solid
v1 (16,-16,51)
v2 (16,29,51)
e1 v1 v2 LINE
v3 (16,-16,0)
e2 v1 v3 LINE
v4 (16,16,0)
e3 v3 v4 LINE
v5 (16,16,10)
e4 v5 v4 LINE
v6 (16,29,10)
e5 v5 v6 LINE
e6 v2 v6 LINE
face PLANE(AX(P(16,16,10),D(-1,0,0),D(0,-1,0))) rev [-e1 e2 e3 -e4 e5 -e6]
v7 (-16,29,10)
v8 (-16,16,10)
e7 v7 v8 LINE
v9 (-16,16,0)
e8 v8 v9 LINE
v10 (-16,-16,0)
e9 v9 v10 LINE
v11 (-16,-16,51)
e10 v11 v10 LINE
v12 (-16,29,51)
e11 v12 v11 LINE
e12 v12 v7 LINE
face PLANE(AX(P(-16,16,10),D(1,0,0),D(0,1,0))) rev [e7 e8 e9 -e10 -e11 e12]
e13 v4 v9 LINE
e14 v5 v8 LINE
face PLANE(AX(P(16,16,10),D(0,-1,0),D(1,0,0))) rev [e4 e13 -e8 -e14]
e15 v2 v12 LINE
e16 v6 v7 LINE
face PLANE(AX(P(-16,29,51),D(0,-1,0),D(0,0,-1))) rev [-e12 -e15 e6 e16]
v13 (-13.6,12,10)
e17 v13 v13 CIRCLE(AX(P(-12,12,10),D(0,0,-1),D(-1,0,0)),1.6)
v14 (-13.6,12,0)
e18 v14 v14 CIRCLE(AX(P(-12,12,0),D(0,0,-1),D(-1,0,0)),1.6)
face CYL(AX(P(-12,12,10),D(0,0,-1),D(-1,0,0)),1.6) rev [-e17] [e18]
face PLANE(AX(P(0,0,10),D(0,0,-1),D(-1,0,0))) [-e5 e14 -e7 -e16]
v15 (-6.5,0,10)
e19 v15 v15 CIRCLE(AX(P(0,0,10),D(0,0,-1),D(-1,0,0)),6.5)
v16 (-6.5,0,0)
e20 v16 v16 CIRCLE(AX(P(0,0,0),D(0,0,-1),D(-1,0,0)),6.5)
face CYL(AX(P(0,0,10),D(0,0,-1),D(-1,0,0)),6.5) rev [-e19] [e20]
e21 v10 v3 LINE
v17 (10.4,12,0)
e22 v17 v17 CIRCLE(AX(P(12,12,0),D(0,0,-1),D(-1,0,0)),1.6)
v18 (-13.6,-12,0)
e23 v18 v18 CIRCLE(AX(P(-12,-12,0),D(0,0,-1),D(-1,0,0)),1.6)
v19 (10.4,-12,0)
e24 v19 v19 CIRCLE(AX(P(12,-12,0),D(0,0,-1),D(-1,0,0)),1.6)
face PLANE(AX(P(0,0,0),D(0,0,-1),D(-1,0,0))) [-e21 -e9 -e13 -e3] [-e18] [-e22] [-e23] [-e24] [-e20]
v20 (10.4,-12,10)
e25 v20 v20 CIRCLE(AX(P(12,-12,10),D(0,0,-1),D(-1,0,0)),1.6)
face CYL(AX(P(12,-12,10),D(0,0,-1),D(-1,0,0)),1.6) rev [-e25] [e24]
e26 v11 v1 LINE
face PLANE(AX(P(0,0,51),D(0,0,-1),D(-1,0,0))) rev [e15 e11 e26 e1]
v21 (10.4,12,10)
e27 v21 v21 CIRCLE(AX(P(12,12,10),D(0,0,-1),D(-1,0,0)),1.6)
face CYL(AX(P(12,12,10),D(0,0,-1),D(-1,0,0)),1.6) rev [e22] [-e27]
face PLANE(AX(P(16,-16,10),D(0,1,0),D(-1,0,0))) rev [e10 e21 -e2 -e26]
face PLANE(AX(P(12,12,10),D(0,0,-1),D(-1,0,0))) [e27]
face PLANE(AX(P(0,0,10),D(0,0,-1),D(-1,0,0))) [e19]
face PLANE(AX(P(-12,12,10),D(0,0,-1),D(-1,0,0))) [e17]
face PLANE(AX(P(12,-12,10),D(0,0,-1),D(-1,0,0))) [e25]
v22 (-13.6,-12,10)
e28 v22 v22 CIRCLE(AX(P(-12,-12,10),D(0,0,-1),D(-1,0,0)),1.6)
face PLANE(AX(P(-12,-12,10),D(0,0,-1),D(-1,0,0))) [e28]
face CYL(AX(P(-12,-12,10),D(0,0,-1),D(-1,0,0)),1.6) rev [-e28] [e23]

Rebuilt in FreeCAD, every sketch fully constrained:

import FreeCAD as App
import Part
import Sketcher

V = App.Vector
Q = App.Units.Quantity

doc = App.newDocument("Part")
body = doc.addObject("PartDesign::Body", "Body")

sketch1 = body.newObject("Sketcher::SketchObject", "Sketch")
sketch1.AttachmentSupport = (doc.getObject("XY_Plane"), [""])
sketch1.MapMode = "FlatFace"
sketch1.addGeometry(Part.LineSegment(V(-16, 16, 0), V(-16, -16, 0)), False)
sketch1.addGeometry(Part.LineSegment(V(-16, -16, 0), V(16, -16, 0)), False)
sketch1.addGeometry(Part.LineSegment(V(16, -16, 0), V(16, 16, 0)), False)
sketch1.addGeometry(Part.LineSegment(V(16, 16, 0), V(-16, 16, 0)), False)
sketch1.addConstraint(Sketcher.Constraint("Coincident", 0, 2, 1, 1))
sketch1.addConstraint(Sketcher.Constraint("Coincident", 1, 2, 2, 1))
sketch1.addConstraint(Sketcher.Constraint("Coincident", 2, 2, 3, 1))
sketch1.addConstraint(Sketcher.Constraint("Coincident", 3, 2, 0, 1))
sketch1.addConstraint(Sketcher.Constraint("Vertical", 0))
sketch1.addConstraint(Sketcher.Constraint("Horizontal", 1))
sketch1.addConstraint(Sketcher.Constraint("Vertical", 2))
sketch1.addConstraint(Sketcher.Constraint("Horizontal", 3))
sketch1.addConstraint(Sketcher.Constraint("Symmetric", 0, 2, 2, 2, -1, 1))
sketch1.addConstraint(Sketcher.Constraint("Equal", 3, 0))
sketch1.addConstraint(Sketcher.Constraint("DistanceX", 1, 1, 1, 2, Q("32 mm")))
pad1 = body.newObject("PartDesign::Pad", "Pad")
pad1.Profile = sketch1
pad1.Length = 10

sketch2 = body.newObject("Sketcher::SketchObject", "Sketch001")
sketch2.AttachmentSupport = (doc.getObject("XY_Plane"), [""])
sketch2.MapMode = "FlatFace"
sketch2.AttachmentOffset = App.Placement(V(0, 0, 10), App.Rotation())
sketch2.addGeometry(Part.LineSegment(V(-16, 29, 0), V(-16, -16, 0)), False)
sketch2.addGeometry(Part.LineSegment(V(-16, -16, 0), V(16, -16, 0)), False)
sketch2.addGeometry(Part.LineSegment(V(16, -16, 0), V(16, 29, 0)), False)
sketch2.addGeometry(Part.LineSegment(V(16, 29, 0), V(-16, 29, 0)), False)
sketch2.addConstraint(Sketcher.Constraint("Coincident", 0, 2, 1, 1))
sketch2.addConstraint(Sketcher.Constraint("Coincident", 1, 2, 2, 1))
sketch2.addConstraint(Sketcher.Constraint("Coincident", 2, 2, 3, 1))
sketch2.addConstraint(Sketcher.Constraint("Coincident", 3, 2, 0, 1))
sketch2.addConstraint(Sketcher.Constraint("Vertical", 0))
sketch2.addConstraint(Sketcher.Constraint("Horizontal", 1))
sketch2.addConstraint(Sketcher.Constraint("Vertical", 2))
sketch2.addConstraint(Sketcher.Constraint("Horizontal", 3))
sketch2.addConstraint(Sketcher.Constraint("DistanceX", 1, 1, 1, 2, Q("32 mm")))
sketch2.addConstraint(Sketcher.Constraint("DistanceY", 0, 2, 0, 1, Q("45 mm")))
sketch2.addConstraint(Sketcher.Constraint("DistanceX", 0, 2, -1, 1, Q("16 mm")))
sketch2.addConstraint(Sketcher.Constraint("DistanceY", 0, 2, -1, 1, Q("16 mm")))
pad2 = body.newObject("PartDesign::Pad", "Pad001")
pad2.Profile = sketch2
pad2.Length = 41

sketch3 = body.newObject("Sketcher::SketchObject", "Sketch002")
sketch3.AttachmentSupport = (doc.getObject("XY_Plane"), [""])
sketch3.MapMode = "FlatFace"
sketch3.addGeometry(Part.Circle(V(12, 12, 0), V(0, 0, 1), 1.6), False)
sketch3.addGeometry(Part.Circle(V(12, -12, 0), V(0, 0, 1), 1.6), False)
sketch3.addGeometry(Part.Circle(V(-12, 12, 0), V(0, 0, 1), 1.6), False)
sketch3.addGeometry(Part.Circle(V(-12, -12, 0), V(0, 0, 1), 1.6), False)
sketch3.addGeometry(Part.Circle(V(0, 0, 0), V(0, 0, 1), 6.5), False)
sketch3.addConstraint(Sketcher.Constraint("Coincident", 4, 3, -1, 1))
sketch3.addConstraint(Sketcher.Constraint("Equal", 0, 1))
sketch3.addConstraint(Sketcher.Constraint("Equal", 1, 2))
sketch3.addConstraint(Sketcher.Constraint("Equal", 2, 3))
sketch3.addConstraint(Sketcher.Constraint("Symmetric", 1, 3, 2, 3, -1, 1))
sketch3.addConstraint(Sketcher.Constraint("Symmetric", 0, 3, 3, 3, -1, 1))
sketch3.addConstraint(Sketcher.Constraint("Symmetric", 0, 3, 2, 3, -2))
sketch3.addConstraint(Sketcher.Constraint("Diameter", 4, Q("13 mm")))
sketch3.addConstraint(Sketcher.Constraint("Diameter", 0, Q("3.2 mm")))
sketch3.addConstraint(Sketcher.Constraint("DistanceX", -1, 1, 0, 3, Q("12 mm")))
sketch3.addConstraint(Sketcher.Constraint("DistanceY", -1, 1, 0, 3, Q("12 mm")))
pocket1 = body.newObject("PartDesign::Pocket", "Pocket")
pocket1.Profile = sketch3
pocket1.Length = 10
pocket1.Reversed = True

doc.recompute()
